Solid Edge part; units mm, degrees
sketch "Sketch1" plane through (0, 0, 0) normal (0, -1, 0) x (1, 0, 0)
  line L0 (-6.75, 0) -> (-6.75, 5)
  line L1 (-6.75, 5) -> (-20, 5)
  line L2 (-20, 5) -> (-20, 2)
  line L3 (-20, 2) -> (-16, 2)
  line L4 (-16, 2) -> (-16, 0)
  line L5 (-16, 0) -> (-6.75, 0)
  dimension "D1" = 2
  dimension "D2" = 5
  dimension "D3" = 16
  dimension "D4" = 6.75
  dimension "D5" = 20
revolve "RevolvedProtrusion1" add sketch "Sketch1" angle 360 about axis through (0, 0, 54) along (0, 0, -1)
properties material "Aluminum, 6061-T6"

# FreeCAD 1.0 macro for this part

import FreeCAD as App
import Part
import Sketcher

doc = App.newDocument("Part")
body = doc.addObject("PartDesign::Body", "Body")

# Sketch on XZ plane
sketch1 = body.newObject("Sketcher::SketchObject", "Sketch")
sketch1.AttachmentSupport = (doc.getObject("XZ_Plane"), [""])
sketch1.MapMode = "FlatFace"
sketch1.addGeometry([
    Part.LineSegment(App.Vector(-16, 0, 0), App.Vector(-6.8, 0, 0)),  # 0
    Part.LineSegment(App.Vector(-6.8, 0, 0), App.Vector(-6.8, 5, 0)),  # 1
    Part.LineSegment(App.Vector(-6.8, 5, 0), App.Vector(-20, 5, 0)),  # 2
    Part.LineSegment(App.Vector(-20, 5, 0), App.Vector(-20, 2, 0)),  # 3
    Part.LineSegment(App.Vector(-20, 2, 0), App.Vector(-16, 2, 0)),  # 4
    Part.LineSegment(App.Vector(-16, 2, 0), App.Vector(-16, 0, 0)),  # 5
], False)
sketch1.addConstraint([
    Sketcher.Constraint("Coincident", 0, 2, 1, 1),
    Sketcher.Constraint("Coincident", 1, 2, 2, 1),
    Sketcher.Constraint("Coincident", 2, 2, 3, 1),
    Sketcher.Constraint("Coincident", 3, 2, 4, 1),
    Sketcher.Constraint("Coincident", 4, 2, 5, 1),
    Sketcher.Constraint("Coincident", 5, 2, 0, 1),
    Sketcher.Constraint("Horizontal", 0),
    Sketcher.Constraint("Vertical", 1),
    Sketcher.Constraint("Horizontal", 2),
    Sketcher.Constraint("Vertical", 3),
    Sketcher.Constraint("Horizontal", 4),
    Sketcher.Constraint("Vertical", 5),
    Sketcher.Constraint("PointOnObject", 0, 2, -1),
    Sketcher.Constraint("DistanceX", 4, 2, -1, 1, 16.0),
    Sketcher.Constraint("DistanceX", 4, 1, 4, 2, 4.0),
    Sketcher.Constraint("DistanceY", 1, 1, 1, 2, 5.0),
    Sketcher.Constraint("DistanceY", 3, 2, 3, 1, 3.0),
    Sketcher.Constraint("DistanceX", 0, 2, -1, 1, 6.75),
])
revolution = body.newObject("PartDesign::Revolution", "Revolution")
revolution.Profile = sketch1
revolution.ReferenceAxis = (sketch1, ["V_Axis"])
revolution.Angle = 360

doc.recompute()
